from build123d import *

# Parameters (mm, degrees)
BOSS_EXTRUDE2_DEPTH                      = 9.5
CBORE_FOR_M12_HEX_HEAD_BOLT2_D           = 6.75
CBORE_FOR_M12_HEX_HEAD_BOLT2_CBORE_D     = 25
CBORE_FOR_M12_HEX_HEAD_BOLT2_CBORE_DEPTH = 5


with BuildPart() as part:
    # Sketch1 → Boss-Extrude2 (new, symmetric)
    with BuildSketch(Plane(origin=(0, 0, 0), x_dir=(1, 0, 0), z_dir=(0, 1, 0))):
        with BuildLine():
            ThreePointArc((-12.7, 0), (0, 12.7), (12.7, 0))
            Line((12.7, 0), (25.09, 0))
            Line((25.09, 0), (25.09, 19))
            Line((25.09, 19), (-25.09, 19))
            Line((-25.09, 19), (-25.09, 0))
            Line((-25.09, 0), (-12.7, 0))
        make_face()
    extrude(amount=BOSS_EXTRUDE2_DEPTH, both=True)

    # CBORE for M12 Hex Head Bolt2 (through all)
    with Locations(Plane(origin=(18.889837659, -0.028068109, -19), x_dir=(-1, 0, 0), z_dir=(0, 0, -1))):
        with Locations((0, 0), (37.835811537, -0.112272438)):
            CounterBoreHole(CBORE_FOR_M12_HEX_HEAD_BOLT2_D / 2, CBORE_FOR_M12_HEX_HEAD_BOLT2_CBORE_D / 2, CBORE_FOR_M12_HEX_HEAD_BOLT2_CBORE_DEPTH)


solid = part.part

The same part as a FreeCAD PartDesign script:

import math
import FreeCAD as App
import Part
import Sketcher
Q = App.Units.Quantity

doc = App.newDocument("Part")
body = doc.addObject("PartDesign::Body", "Body")

sketch1 = body.newObject("Sketcher::SketchObject", "Sketch")
sketch1.AttachmentSupport = (doc.getObject("XZ_Plane"), [""])
sketch1.MapMode = "FlatFace"
sketch1.addGeometry([
    Part.ArcOfCircle(Part.Circle(App.Vector(0, 0, 0), App.Vector(0, 0, 1), 13), math.radians(180), math.radians(360)),
    Part.LineSegment(App.Vector(13, 0, 0), App.Vector(25, 0, 0)),
    Part.LineSegment(App.Vector(25, 0, 0), App.Vector(25, -19, 0)),
    Part.LineSegment(App.Vector(25, -19, 0), App.Vector(-25, -19, 0)),
    Part.LineSegment(App.Vector(-25, -19, 0), App.Vector(-25, 0, 0)),
    Part.LineSegment(App.Vector(-25, 0, 0), App.Vector(-13, 0, 0)),
], False)
sketch1.addConstraint([
    Sketcher.Constraint("Coincident", 0, 2, 1, 1),
    Sketcher.Constraint("Coincident", 1, 2, 2, 1),
    Sketcher.Constraint("Coincident", 2, 2, 3, 1),
    Sketcher.Constraint("Coincident", 3, 2, 4, 1),
    Sketcher.Constraint("Coincident", 4, 2, 5, 1),
    Sketcher.Constraint("Coincident", 5, 2, 0, 1),
    Sketcher.Constraint("Horizontal", 1),
    Sketcher.Constraint("Vertical", 2),
    Sketcher.Constraint("Horizontal", 3),
    Sketcher.Constraint("Vertical", 4),
    Sketcher.Constraint("Horizontal", 5),
    Sketcher.Constraint("Coincident", 0, 3, -1, 1),
    Sketcher.Constraint("Symmetric", 1, 2, 4, 2, -1, 1),
    Sketcher.Constraint("PointOnObject", 0, 2, -1),
    Sketcher.Constraint("Radius", 0, Q("12.7 mm")),
    Sketcher.Constraint("DistanceY", 2, 2, 2, 1, Q("19 mm")),
    Sketcher.Constraint("DistanceX", 1, 1, 1, 2, Q("12.39 mm")),
])
pad1 = body.newObject("PartDesign::Pad", "Pad")
pad1.Profile = sketch1
pad1.Length = 19
pad1.Midplane = True

sketch2 = body.newObject("Sketcher::SketchObject", "Sketch001")
sketch2.AttachmentSupport = (doc.getObject("XY_Plane"), [""])
sketch2.MapMode = "FlatFace"
sketch2.AttachmentOffset = App.Placement(App.Vector(0, 0, -19), App.Rotation())
sketch2.addGeometry([
    Part.Circle(App.Vector(18.9, 0, 0), App.Vector(0, 0, 1), 3.4),
    Part.Circle(App.Vector(-18.9, -0.1, 0), App.Vector(0, 0, 1), 3.4),
], False)
sketch2.addConstraint([
    Sketcher.Constraint("Equal", 0, 1),
    Sketcher.Constraint("Diameter", 0, Q("6.75 mm")),
    Sketcher.Constraint("DistanceY", 0, 3, -1, 1, Q("0.028068 mm")),
    Sketcher.Constraint("DistanceY", 1, 3, -1, 1, Q("0.140341 mm")),
    Sketcher.Constraint("DistanceX", 1, 3, 0, 3, Q("37.835812 mm")),
    Sketcher.Constraint("DistanceX", -1, 1, 0, 3, Q("18.889838 mm")),
])
doc.recompute()
hole = body.newObject("PartDesign::Hole", "Hole")
hole.Profile = sketch2
hole.ThreadType = "None"
hole.Diameter = 6.75
hole.DepthType = "ThroughAll"
hole.HoleCutType = "Counterbore"
hole.HoleCutDiameter = 25
hole.HoleCutDepth = 5
hole.Reversed = True

doc.recompute()
